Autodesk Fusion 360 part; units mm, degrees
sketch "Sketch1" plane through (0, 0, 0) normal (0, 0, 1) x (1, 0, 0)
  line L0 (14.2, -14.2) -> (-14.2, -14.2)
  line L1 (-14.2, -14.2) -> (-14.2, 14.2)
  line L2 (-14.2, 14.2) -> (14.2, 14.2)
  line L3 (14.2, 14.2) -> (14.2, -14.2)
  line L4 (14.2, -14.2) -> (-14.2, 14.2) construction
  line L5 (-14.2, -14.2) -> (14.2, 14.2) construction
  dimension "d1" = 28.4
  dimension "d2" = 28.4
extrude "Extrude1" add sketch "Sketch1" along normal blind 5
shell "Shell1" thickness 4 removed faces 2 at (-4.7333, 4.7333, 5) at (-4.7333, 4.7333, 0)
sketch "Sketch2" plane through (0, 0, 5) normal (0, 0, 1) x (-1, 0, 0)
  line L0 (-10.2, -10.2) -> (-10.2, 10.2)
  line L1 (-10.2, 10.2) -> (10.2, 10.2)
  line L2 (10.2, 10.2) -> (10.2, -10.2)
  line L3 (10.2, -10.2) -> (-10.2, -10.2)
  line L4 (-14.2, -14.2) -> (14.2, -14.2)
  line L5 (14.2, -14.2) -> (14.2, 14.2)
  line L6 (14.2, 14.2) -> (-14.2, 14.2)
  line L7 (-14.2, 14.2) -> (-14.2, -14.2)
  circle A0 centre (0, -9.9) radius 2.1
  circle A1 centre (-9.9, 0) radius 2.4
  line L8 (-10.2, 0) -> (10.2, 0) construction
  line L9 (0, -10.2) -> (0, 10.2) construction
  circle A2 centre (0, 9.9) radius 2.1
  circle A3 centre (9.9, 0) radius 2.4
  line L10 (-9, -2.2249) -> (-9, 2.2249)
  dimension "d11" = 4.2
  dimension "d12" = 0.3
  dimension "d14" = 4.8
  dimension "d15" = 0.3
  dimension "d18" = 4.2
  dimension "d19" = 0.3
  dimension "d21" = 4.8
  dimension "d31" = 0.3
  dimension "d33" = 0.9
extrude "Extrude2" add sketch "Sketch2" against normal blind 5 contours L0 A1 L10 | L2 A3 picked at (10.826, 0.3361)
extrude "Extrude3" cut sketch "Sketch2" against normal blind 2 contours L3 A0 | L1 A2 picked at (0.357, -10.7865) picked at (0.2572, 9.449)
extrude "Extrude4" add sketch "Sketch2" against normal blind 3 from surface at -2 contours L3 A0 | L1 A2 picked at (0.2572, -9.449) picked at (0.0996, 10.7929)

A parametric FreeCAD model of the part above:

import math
import FreeCAD as App
import Part
import Sketcher
from FreeCAD import Vector
Q = App.Units.Quantity


def faces_at(feature, points):
    """Names of the faces that lie closest to the given points."""
    faces = feature.Shape.Faces
    near = lambda p: min(range(len(faces)), key=lambda i: faces[i].distToShape(Part.Vertex(*p))[0])
    return sorted({f"Face{near(p) + 1}" for p in points})

doc = App.newDocument("Part")
body = doc.addObject("PartDesign::Body", "Body")

# Sketch on XY plane
sketch1 = body.newObject("Sketcher::SketchObject", "Sketch")
sketch1.AttachmentSupport = (doc.getObject("XY_Plane"), [""])
sketch1.MapMode = "FlatFace"
sketch1.addGeometry([
    Part.LineSegment(Vector(-14.2, -14.2, 0), Vector(14.2, -14.2, 0)),
    Part.LineSegment(Vector(14.2, -14.2, 0), Vector(14.2, 14.2, 0)),
    Part.LineSegment(Vector(14.2, 14.2, 0), Vector(-14.2, 14.2, 0)),
    Part.LineSegment(Vector(-14.2, 14.2, 0), Vector(-14.2, -14.2, 0)),
], False)
sketch1.addConstraint([
    Sketcher.Constraint("Coincident", 0, 2, 1, 1),
    Sketcher.Constraint("Coincident", 1, 2, 2, 1),
    Sketcher.Constraint("Coincident", 2, 2, 3, 1),
    Sketcher.Constraint("Coincident", 3, 2, 0, 1),
    Sketcher.Constraint("Horizontal", 0),
    Sketcher.Constraint("Vertical", 1),
    Sketcher.Constraint("Horizontal", 2),
    Sketcher.Constraint("Vertical", 3),
    Sketcher.Constraint("Symmetric", 0, 2, 2, 2, -1, 1),
    Sketcher.Constraint("Equal", 2, 1),
    Sketcher.Constraint("DistanceX", 0, 1, 0, 2, Q("28.4 mm")),
])
pad1 = body.newObject("PartDesign::Pad", "Pad")
pad1.Profile = sketch1
pad1.Length = 5
doc.recompute()

thickness = body.newObject("PartDesign::Thickness", "Thickness")
thickness.Base = (pad1, faces_at(pad1, [(-4.733, 4.733, 5), (-4.733, 4.733, 0)]))
thickness.Value = 4
thickness.Reversed = True
thickness.Join = "Intersection"

# Sketch on XY plane
sketch2 = body.newObject("Sketcher::SketchObject", "Sketch001")
sketch2.AttachmentSupport = (doc.getObject("XY_Plane"), [""])
sketch2.MapMode = "FlatFace"
sketch2.AttachmentOffset = App.Placement(Vector(0, 0, 5), App.Rotation())
sketch2.addGeometry([
    Part.LineSegment(Vector(10.2, -2.381176, 0), Vector(10.2, 2.381176, 0)),  # 0
    Part.ArcOfCircle(Part.Circle(Vector(9.9, 0, 0), Vector(0, 0, 1), 2.4), math.radians(82.819244), math.radians(112.023951)),  # 1
    Part.LineSegment(Vector(9, 2.2249, 0), Vector(9, -2.2249, 0)),  # 2
    Part.ArcOfCircle(Part.Circle(Vector(9.9, 0, 0), Vector(0, 0, 1), 2.4), math.radians(-112.023951), math.radians(-82.819244)),  # 3
    Part.LineSegment(Vector(-10.2, -2.381176, 0), Vector(-10.2, 2.381176, 0)),  # 4
    Part.ArcOfCircle(Part.Circle(Vector(-9.9, 0, 0), Vector(0, 0, 1), 2.4), math.radians(97.180756), math.radians(262.819244)),  # 5
], False)
sketch2.addConstraint([
    Sketcher.Constraint("Coincident", 0, 2, 1, 1),
    Sketcher.Constraint("Coincident", 1, 2, 2, 1),
    Sketcher.Constraint("Coincident", 2, 2, 3, 1),
    Sketcher.Constraint("Coincident", 3, 2, 0, 1),
    Sketcher.Constraint("Coincident", 4, 1, 5, 2),
    Sketcher.Constraint("Coincident", 5, 1, 4, 2),
    Sketcher.Constraint("Vertical", 0),
    Sketcher.Constraint("Vertical", 2),
    Sketcher.Constraint("Vertical", 4),
    Sketcher.Constraint("Coincident", 3, 3, 1, 3),
    Sketcher.Constraint("Equal", 1, 3),
    Sketcher.Constraint("Equal", 3, 5),
    Sketcher.Constraint("Symmetric", 1, 3, 5, 3, -1, 1),
    Sketcher.Constraint("Symmetric", 3, 2, 4, 1, -2),
    Sketcher.Constraint("Radius", 1, Q("2.4 mm")),
    Sketcher.Constraint("DistanceX", 1, 3, 0, 2, Q("0.3 mm")),
    Sketcher.Constraint("DistanceX", 1, 2, 1, 3, Q("0.9 mm")),
    Sketcher.Constraint("DistanceX", -1, 1, 1, 2, Q("9 mm")),
])
pad2 = body.newObject("PartDesign::Pad", "Pad001")
pad2.Profile = sketch2
pad2.Length = 5
pad2.Reversed = True

# Sketch on XY plane
sketch3 = body.newObject("Sketcher::SketchObject", "Sketch002")
sketch3.AttachmentSupport = (doc.getObject("XY_Plane"), [""])
sketch3.MapMode = "FlatFace"
sketch3.AttachmentOffset = App.Placement(Vector(0, 0, 5), App.Rotation())
sketch3.addGeometry([
    Part.LineSegment(Vector(-2.078461, 10.2, 0), Vector(2.078461, 10.2, 0)),
    Part.ArcOfCircle(Part.Circle(Vector(0, 9.9, 0), Vector(0, 0, 1), 2.1), math.radians(8.213211), math.radians(171.786789)),
    Part.LineSegment(Vector(-2.078461, -10.2, 0), Vector(2.078461, -10.2, 0)),
    Part.ArcOfCircle(Part.Circle(Vector(0, -9.9, 0), Vector(0, 0, 1), 2.1), math.radians(-8.213211), math.radians(188.213211)),
], False)
sketch3.addConstraint([
    Sketcher.Constraint("Coincident", 0, 1, 1, 2),
    Sketcher.Constraint("Coincident", 1, 1, 0, 2),
    Sketcher.Constraint("Coincident", 2, 1, 3, 2),
    Sketcher.Constraint("Coincident", 3, 1, 2, 2),
    Sketcher.Constraint("Horizontal", 0),
    Sketcher.Constraint("Horizontal", 2),
    Sketcher.Constraint("Equal", 1, 3),
    Sketcher.Constraint("Symmetric", 1, 3, 3, 3, -1, 1),
    Sketcher.Constraint("Symmetric", 0, 1, 2, 1, -1),
    Sketcher.Constraint("Radius", 1, Q("2.1 mm")),
    Sketcher.Constraint("DistanceY", 1, 3, 0, 1, Q("0.3 mm")),
    Sketcher.Constraint("DistanceY", -1, 1, 1, 3, Q("9.9 mm")),
])
pocket1 = body.newObject("PartDesign::Pocket", "Pocket")
pocket1.Profile = sketch3
pocket1.Length = 2

# Sketch on XY plane
sketch4 = body.newObject("Sketcher::SketchObject", "Sketch003")
sketch4.AttachmentSupport = (doc.getObject("XY_Plane"), [""])
sketch4.MapMode = "FlatFace"
sketch4.AttachmentOffset = App.Placement(Vector(0, 0, 3), App.Rotation())
sketch4.addGeometry([
    Part.ArcOfCircle(Part.Circle(Vector(0, 9.9, 0), Vector(0, 0, 1), 2.1), math.radians(171.786789), math.radians(368.213211)),
    Part.LineSegment(Vector(2.078461, 10.2, 0), Vector(-2.078461, 10.2, 0)),
    Part.ArcOfCircle(Part.Circle(Vector(0, -9.9, 0), Vector(0, 0, 1), 2.1), math.radians(-171.786789), math.radians(-8.213211)),
    Part.LineSegment(Vector(2.078461, -10.2, 0), Vector(-2.078461, -10.2, 0)),
], False)
sketch4.addConstraint([
    Sketcher.Constraint("Coincident", 0, 1, 1, 2),
    Sketcher.Constraint("Coincident", 1, 1, 0, 2),
    Sketcher.Constraint("Coincident", 2, 1, 3, 2),
    Sketcher.Constraint("Coincident", 3, 1, 2, 2),
    Sketcher.Constraint("Horizontal", 1),
    Sketcher.Constraint("Horizontal", 3),
    Sketcher.Constraint("Equal", 0, 2),
    Sketcher.Constraint("Symmetric", 0, 3, 2, 3, -1, 1),
    Sketcher.Constraint("Symmetric", 0, 1, 2, 1, -1),
    Sketcher.Constraint("Radius", 0, Q("2.1 mm")),
    Sketcher.Constraint("DistanceY", 0, 3, 0, 1, Q("0.3 mm")),
    Sketcher.Constraint("DistanceY", -1, 1, 0, 3, Q("9.9 mm")),
])
pad3 = body.newObject("PartDesign::Pad", "Pad002")
pad3.Profile = sketch4
pad3.Length = 3
pad3.Reversed = True

doc.recompute()
